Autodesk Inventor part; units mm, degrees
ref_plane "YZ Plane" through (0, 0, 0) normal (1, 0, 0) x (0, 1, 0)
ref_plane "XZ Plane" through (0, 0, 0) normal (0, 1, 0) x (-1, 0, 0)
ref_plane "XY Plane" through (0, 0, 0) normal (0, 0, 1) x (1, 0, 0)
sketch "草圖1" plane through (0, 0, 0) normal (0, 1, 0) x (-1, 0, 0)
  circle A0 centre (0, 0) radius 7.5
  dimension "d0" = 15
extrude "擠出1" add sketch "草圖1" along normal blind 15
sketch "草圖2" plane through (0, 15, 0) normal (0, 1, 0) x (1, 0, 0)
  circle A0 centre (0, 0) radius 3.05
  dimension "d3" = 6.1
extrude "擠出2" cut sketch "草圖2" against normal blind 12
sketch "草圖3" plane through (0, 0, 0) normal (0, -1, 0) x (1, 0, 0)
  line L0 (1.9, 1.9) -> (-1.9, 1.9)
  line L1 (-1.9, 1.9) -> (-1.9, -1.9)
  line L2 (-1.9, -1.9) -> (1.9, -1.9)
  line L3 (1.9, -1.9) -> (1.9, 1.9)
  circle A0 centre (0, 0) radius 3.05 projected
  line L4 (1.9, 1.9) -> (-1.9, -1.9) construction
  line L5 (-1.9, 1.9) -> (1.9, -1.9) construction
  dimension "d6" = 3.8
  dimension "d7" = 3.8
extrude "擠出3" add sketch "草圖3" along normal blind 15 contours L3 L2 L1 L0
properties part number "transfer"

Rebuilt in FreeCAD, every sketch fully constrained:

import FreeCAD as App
import Part
import Sketcher

doc = App.newDocument("Part")
params = doc.addObject("Spreadsheet::Sheet", "Params")
for row, (alias, value) in enumerate([
    ("sketch1_diameter", "15 mm"),
    ("pad1_length", "15 mm"),
    ("sketch2_diameter", "6.1 mm"),
    ("pocket1_length", "12 mm"),
    ("sketch3_width", "3.8 mm"),
    ("pad2_length", "15 mm"),
], start=1):
    params.set(f"A{row}", alias)
    params.set(f"B{row}", "=" + value)
    params.setAlias(f"B{row}", alias)

body = doc.addObject("PartDesign::Body", "Body")

# Sketch on XZ plane
sketch1 = doc.addObject("Sketcher::SketchObject", "Sketch")
body.addObject(sketch1)
sketch1.AttachmentSupport = (doc.XZ_Plane, [""])
sketch1.MapMode = "FlatFace"
sketch1.addGeometry(Part.Circle(App.Vector(0, 0, 0), App.Vector(0, 0, 1), 8), False)
sketch1.addConstraint(Sketcher.Constraint("Coincident", 0, 3, -1, 1))
sketch1.addConstraint(Sketcher.Constraint("Diameter", 0, 15.0))
sketch1.setExpression("Constraints[1]", "Params.sketch1_diameter")
pad1 = doc.addObject("PartDesign::Pad", "Pad")
body.addObject(pad1)
pad1.Profile = sketch1
pad1.setExpression("Length", "Params.pad1_length")
pad1.Reversed = True

# Sketch on XZ plane
sketch2 = doc.addObject("Sketcher::SketchObject", "Sketch001")
body.addObject(sketch2)
sketch2.AttachmentSupport = (doc.XZ_Plane, [""])
sketch2.MapMode = "FlatFace"
sketch2.AttachmentOffset = App.Placement(App.Vector(0, 0, -15), App.Rotation())
sketch2.addGeometry(Part.Circle(App.Vector(0, 0, 0), App.Vector(0, 0, 1), 3), False)
sketch2.addConstraint(Sketcher.Constraint("Coincident", 0, 3, -1, 1))
sketch2.addConstraint(Sketcher.Constraint("Diameter", 0, 6.1))
sketch2.setExpression("Constraints[1]", "Params.sketch2_diameter")
pocket1 = doc.addObject("PartDesign::Pocket", "Pocket")
body.addObject(pocket1)
pocket1.Profile = sketch2
pocket1.setExpression("Length", "Params.pocket1_length")
pocket1.Reversed = True

# Sketch on XZ plane
sketch3 = doc.addObject("Sketcher::SketchObject", "Sketch002")
body.addObject(sketch3)
sketch3.AttachmentSupport = (doc.XZ_Plane, [""])
sketch3.MapMode = "FlatFace"
sketch3.addGeometry(Part.LineSegment(App.Vector(1.9, -1.9, 0), App.Vector(1.9, 1.9, 0)), False)
sketch3.addGeometry(Part.LineSegment(App.Vector(1.9, 1.9, 0), App.Vector(-1.9, 1.9, 0)), False)
sketch3.addGeometry(Part.LineSegment(App.Vector(-1.9, 1.9, 0), App.Vector(-1.9, -1.9, 0)), False)
sketch3.addGeometry(Part.LineSegment(App.Vector(-1.9, -1.9, 0), App.Vector(1.9, -1.9, 0)), False)
sketch3.addConstraint(Sketcher.Constraint("Coincident", 0, 2, 1, 1))
sketch3.addConstraint(Sketcher.Constraint("Coincident", 1, 2, 2, 1))
sketch3.addConstraint(Sketcher.Constraint("Coincident", 2, 2, 3, 1))
sketch3.addConstraint(Sketcher.Constraint("Coincident", 3, 2, 0, 1))
sketch3.addConstraint(Sketcher.Constraint("Vertical", 0))
sketch3.addConstraint(Sketcher.Constraint("Horizontal", 1))
sketch3.addConstraint(Sketcher.Constraint("Vertical", 2))
sketch3.addConstraint(Sketcher.Constraint("Horizontal", 3))
sketch3.addConstraint(Sketcher.Constraint("Symmetric", 0, 2, 2, 2, -1, 1))
sketch3.addConstraint(Sketcher.Constraint("Equal", 3, 0))
sketch3.addConstraint(Sketcher.Constraint("DistanceX", 1, 2, 1, 1, 3.8))
sketch3.setExpression("Constraints[10]", "Params.sketch3_width")
pad2 = doc.addObject("PartDesign::Pad", "Pad001")
body.addObject(pad2)
pad2.Profile = sketch3
pad2.setExpression("Length", "Params.pad2_length")

doc.recompute()
